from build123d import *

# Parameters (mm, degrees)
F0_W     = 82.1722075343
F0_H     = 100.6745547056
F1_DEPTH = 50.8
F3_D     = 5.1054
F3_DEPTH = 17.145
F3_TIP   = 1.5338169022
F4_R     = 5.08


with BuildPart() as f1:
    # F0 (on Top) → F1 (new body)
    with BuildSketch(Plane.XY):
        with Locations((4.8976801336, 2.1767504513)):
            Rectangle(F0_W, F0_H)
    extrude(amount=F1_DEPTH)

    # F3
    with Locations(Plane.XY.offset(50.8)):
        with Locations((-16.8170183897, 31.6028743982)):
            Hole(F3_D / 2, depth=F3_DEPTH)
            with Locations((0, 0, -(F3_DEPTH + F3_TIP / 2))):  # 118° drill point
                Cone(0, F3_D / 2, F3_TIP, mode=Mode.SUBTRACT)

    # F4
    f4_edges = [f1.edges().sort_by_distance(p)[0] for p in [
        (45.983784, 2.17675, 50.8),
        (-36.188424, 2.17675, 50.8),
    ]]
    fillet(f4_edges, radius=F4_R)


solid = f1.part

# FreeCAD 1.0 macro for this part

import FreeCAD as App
import Part
import Sketcher
from FreeCAD import Vector
Q = App.Units.Quantity


def edges_at(feature, points):
    """Names of the edges that pass closest to the given points."""
    edges = feature.Shape.Edges
    near = lambda p: min(range(len(edges)), key=lambda i: edges[i].distToShape(Part.Vertex(*p))[0])
    return sorted({f"Edge{near(p) + 1}" for p in points})

doc = App.newDocument("Part")
params = doc.addObject("Spreadsheet::Sheet", "Params")
for row, (alias, value) in enumerate([
    ("pad1_length", "2 in"),
    ("sketch2_diameter", "0.201 in"),
    ("hole_diameter", "0.201 in"),
    ("hole_depth", "0.675 in"),
    ("fillet_radius", "0.2 in"),
], start=1):
    params.set(f"A{row}", alias)
    params.set(f"B{row}", "=" + value)
    params.setAlias(f"B{row}", alias)

body = doc.addObject("PartDesign::Body", "Body")

sketch1 = body.newObject("Sketcher::SketchObject", "Sketch")
sketch1.AttachmentSupport = (doc.getObject("XY_Plane"), [""])
sketch1.MapMode = "FlatFace"
sketch1.addGeometry([
    Part.LineSegment(Vector(-36, 53, 0), Vector(-36, -48, 0)),
    Part.LineSegment(Vector(-36, -48, 0), Vector(46, -48, 0)),
    Part.LineSegment(Vector(46, -48, 0), Vector(46, 53, 0)),
    Part.LineSegment(Vector(46, 53, 0), Vector(-36, 53, 0)),
], False)
sketch1.addConstraint([
    Sketcher.Constraint("Coincident", 0, 2, 1, 1),
    Sketcher.Constraint("Coincident", 1, 2, 2, 1),
    Sketcher.Constraint("Coincident", 2, 2, 3, 1),
    Sketcher.Constraint("Coincident", 3, 2, 0, 1),
    Sketcher.Constraint("Vertical", 0),
    Sketcher.Constraint("Horizontal", 1),
    Sketcher.Constraint("Vertical", 2),
    Sketcher.Constraint("Horizontal", 3),
    Sketcher.Constraint("DistanceX", 1, 1, 1, 2, Q("82.172208 mm")),
    Sketcher.Constraint("DistanceY", 0, 2, 0, 1, Q("100.674555 mm")),
    Sketcher.Constraint("DistanceX", 0, 2, -1, 1, Q("36.188424 mm")),
    Sketcher.Constraint("DistanceY", 0, 2, -1, 1, Q("48.160527 mm")),
])
pad1 = body.newObject("PartDesign::Pad", "Pad")
pad1.Profile = sketch1
pad1.setExpression("Length", "Params.pad1_length")

sketch2 = body.newObject("Sketcher::SketchObject", "Sketch001")
sketch2.AttachmentSupport = (doc.getObject("XY_Plane"), [""])
sketch2.MapMode = "FlatFace"
sketch2.AttachmentOffset = App.Placement(Vector(0, 0, 2 * 25.4), App.Rotation())
sketch2.addGeometry(Part.Circle(Vector(-16.8, 31.6, 0), Vector(0, 0, 1), 2.6), False)
sketch2.addConstraint([
    Sketcher.Constraint("Diameter", 0, Q("0.201 in")),
    Sketcher.Constraint("DistanceX", 0, 3, -1, 1, Q("16.817018 mm")),
    Sketcher.Constraint("DistanceY", -1, 1, 0, 3, Q("31.602874 mm")),
])
sketch2.setExpression("Constraints[0]", "Params.sketch2_diameter")
doc.recompute()
hole = body.newObject("PartDesign::Hole", "Hole")
hole.Profile = sketch2
hole.ThreadType = "None"
hole.setExpression("Diameter", "Params.hole_diameter")
hole.DepthType = "Dimension"
hole.setExpression("Depth", "Params.hole_depth")
hole.DrillPoint = "Angled"
hole.DrillPointAngle = 118
doc.recompute()

fillet = body.newObject("PartDesign::Fillet", "Fillet")
fillet.Base = (hole, edges_at(hole, [(45.984, 2.177, 50.8), (-36.188, 2.177, 50.8)]))
fillet.setExpression("Radius", "Params.fillet_radius")

doc.recompute()
